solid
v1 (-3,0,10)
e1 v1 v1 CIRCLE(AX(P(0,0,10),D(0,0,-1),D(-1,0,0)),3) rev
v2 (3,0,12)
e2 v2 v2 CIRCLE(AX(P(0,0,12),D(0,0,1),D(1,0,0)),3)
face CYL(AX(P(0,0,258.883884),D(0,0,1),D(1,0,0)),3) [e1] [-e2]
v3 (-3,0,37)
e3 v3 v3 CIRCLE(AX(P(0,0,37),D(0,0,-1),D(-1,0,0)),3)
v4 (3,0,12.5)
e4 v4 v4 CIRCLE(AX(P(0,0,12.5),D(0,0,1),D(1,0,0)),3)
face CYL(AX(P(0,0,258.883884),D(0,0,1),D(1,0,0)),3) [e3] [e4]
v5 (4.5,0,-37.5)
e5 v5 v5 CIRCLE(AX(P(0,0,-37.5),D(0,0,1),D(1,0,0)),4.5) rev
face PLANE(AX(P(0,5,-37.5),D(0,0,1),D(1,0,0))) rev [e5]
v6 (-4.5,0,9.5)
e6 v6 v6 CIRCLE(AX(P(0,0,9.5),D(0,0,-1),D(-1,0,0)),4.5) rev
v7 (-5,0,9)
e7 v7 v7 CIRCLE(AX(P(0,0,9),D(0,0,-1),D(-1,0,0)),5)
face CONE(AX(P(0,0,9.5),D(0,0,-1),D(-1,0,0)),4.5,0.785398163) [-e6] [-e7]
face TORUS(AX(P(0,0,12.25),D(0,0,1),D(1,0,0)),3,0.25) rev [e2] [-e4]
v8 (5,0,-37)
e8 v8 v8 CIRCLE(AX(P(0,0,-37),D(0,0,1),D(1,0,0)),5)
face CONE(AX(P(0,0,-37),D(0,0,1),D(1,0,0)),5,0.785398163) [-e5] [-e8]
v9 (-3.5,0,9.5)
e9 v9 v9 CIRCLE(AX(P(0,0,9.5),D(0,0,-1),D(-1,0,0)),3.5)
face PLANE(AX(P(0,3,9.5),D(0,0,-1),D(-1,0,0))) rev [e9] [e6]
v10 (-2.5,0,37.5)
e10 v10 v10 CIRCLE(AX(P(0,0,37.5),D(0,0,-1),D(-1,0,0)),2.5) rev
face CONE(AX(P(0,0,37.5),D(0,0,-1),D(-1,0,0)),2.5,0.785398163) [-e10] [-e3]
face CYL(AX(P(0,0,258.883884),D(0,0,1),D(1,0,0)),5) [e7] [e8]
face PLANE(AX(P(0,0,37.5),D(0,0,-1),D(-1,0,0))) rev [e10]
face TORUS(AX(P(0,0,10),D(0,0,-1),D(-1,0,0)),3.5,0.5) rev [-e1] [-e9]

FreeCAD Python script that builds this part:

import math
import FreeCAD as App
import Part
import Sketcher

V = App.Vector


def edges_at(feature, points):
    """Names of the edges that pass closest to the given points."""
    edges = feature.Shape.Edges
    near = lambda p: min(range(len(edges)), key=lambda i: edges[i].distToShape(Part.Vertex(*p))[0])
    return sorted({f"Edge{near(p) + 1}" for p in points})

doc = App.newDocument("Part")
body = doc.addObject("PartDesign::Body", "Body")

# Sketch on YZ plane
sketch1 = body.newObject("Sketcher::SketchObject", "Sketch")
sketch1.AttachmentSupport = (doc.getObject("YZ_Plane"), [""])
sketch1.MapMode = "FlatFace"
sketch1.addGeometry([
    Part.LineSegment(V(0, 37.5, 0), V(0, -37.5, 0)),  # 0
    Part.LineSegment(V(0, -37.5, 0), V(5, -37.5, 0)),  # 1
    Part.LineSegment(V(5, -37.5, 0), V(5, 9.5, 0)),  # 2
    Part.LineSegment(V(5, 9.5, 0), V(3, 9.5, 0)),  # 3
    Part.LineSegment(V(3, 9.5, 0), V(3, 12, 0)),  # 4
    Part.ArcOfCircle(Part.Circle(V(3, 12.25, 0), V(0, 0, 1), 0.25), math.radians(90), math.radians(270)),  # 5
    Part.LineSegment(V(3, 12.5, 0), V(3, 37.5, 0)),  # 6
    Part.LineSegment(V(3, 37.5, 0), V(0, 37.5, 0)),  # 7
], False)
sketch1.addConstraint([
    Sketcher.Constraint("Coincident", 0, 2, 1, 1),
    Sketcher.Constraint("Coincident", 1, 2, 2, 1),
    Sketcher.Constraint("Coincident", 2, 2, 3, 1),
    Sketcher.Constraint("Coincident", 3, 2, 4, 1),
    Sketcher.Constraint("Coincident", 4, 2, 5, 2),
    Sketcher.Constraint("Coincident", 5, 1, 6, 1),
    Sketcher.Constraint("Coincident", 6, 2, 7, 1),
    Sketcher.Constraint("Coincident", 7, 2, 0, 1),
    Sketcher.Constraint("Vertical", 0),
    Sketcher.Constraint("Horizontal", 1),
    Sketcher.Constraint("Vertical", 2),
    Sketcher.Constraint("Horizontal", 3),
    Sketcher.Constraint("Vertical", 4),
    Sketcher.Constraint("Vertical", 6),
    Sketcher.Constraint("Horizontal", 7),
    Sketcher.Constraint("Symmetric", 0, 2, 7, 2, -1, 1),
    Sketcher.Constraint("Vertical", 5, 3, 3, 2),
    Sketcher.Constraint("Vertical", 4, 2, 5, 1),
    Sketcher.Constraint("DistanceX", 1, 1, 1, 2, 5.0),
    Sketcher.Constraint("DistanceX", 3, 2, 3, 1, 2.0),
    Sketcher.Constraint("DistanceY", 0, 2, 0, 1, 75.0),
    Sketcher.Constraint("DistanceY", 2, 1, 2, 2, 47.0),
    Sketcher.Constraint("DistanceY", 6, 1, 6, 2, 25.0),
    Sketcher.Constraint("Radius", 5, 0.25),
])
revolution = body.newObject("PartDesign::Revolution", "Revolution")
revolution.Profile = sketch1
revolution.ReferenceAxis = (sketch1, ["V_Axis"])
revolution.Angle = 360
doc.recompute()

fillet = body.newObject("PartDesign::Fillet", "Fillet")
fillet.Base = (revolution, edges_at(revolution, [(0, -3, 9.5)]))
fillet.Radius = 0.5
doc.recompute()

chamfer = body.newObject("PartDesign::Chamfer", "Chamfer")
chamfer.Base = (fillet, edges_at(fillet, [(0, -5, -37.5), (0, -3, 37.5), (0, -5, 9.5)]))
chamfer.Size = 0.5

doc.recompute()
